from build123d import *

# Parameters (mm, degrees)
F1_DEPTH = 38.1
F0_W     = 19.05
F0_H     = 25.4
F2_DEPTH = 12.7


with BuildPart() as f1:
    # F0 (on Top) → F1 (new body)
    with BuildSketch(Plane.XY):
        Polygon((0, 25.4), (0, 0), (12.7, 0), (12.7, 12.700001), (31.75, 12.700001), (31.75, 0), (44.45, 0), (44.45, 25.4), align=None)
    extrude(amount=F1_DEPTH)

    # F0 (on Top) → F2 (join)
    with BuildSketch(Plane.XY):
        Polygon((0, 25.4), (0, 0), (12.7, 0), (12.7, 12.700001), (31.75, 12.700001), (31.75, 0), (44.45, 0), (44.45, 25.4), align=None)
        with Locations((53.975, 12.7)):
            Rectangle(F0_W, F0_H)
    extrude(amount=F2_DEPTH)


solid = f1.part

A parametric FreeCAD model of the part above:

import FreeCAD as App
import Part
import Sketcher
from FreeCAD import Vector
Q = App.Units.Quantity


def add_polygon(sketch, points):
    """Adds a closed chain of lines whose ends are joined by coincident constraints."""
    first, n = sketch.GeometryCount, len(points)
    for a, b in zip(points, points[1:] + points[:1]):
        sketch.addGeometry(Part.LineSegment(App.Vector(*a, 0), App.Vector(*b, 0)), False)
    for i in range(n):
        sketch.addConstraint(Sketcher.Constraint("Coincident", first + i, 2, first + (i + 1) % n, 1))

doc = App.newDocument("Part")
params = doc.addObject("Spreadsheet::Sheet", "Params")
for row, (alias, value) in enumerate([
    ("sketch1_height", "1 in"),
    ("sketch1_width", "0.5 in"),
    ("sketch1_width2", "0.75 in"),
    ("pad1_length", "1.5 in"),
    ("sketch2_height", "1 in"),
    ("sketch2_width", "0.5 in"),
    ("sketch2_width2", "2.5 in"),
    ("sketch2_width3", "0.75 in"),
    ("pad2_length", "0.5 in"),
], start=1):
    params.set(f"A{row}", alias)
    params.set(f"B{row}", "=" + value)
    params.setAlias(f"B{row}", alias)

body = doc.addObject("PartDesign::Body", "Body")

sketch1 = doc.addObject("Sketcher::SketchObject", "Sketch")
body.addObject(sketch1)
sketch1.AttachmentSupport = (doc.XY_Plane, [""])
sketch1.MapMode = "FlatFace"
add_polygon(sketch1, [(0, 25), (0, 0), (13, 0), (13, 13), (32, 13), (32, 0), (44, 0), (44, 25)])
sketch1.addConstraint([
    Sketcher.Constraint("Vertical", 0),
    Sketcher.Constraint("Horizontal", 1),
    Sketcher.Constraint("Vertical", 2),
    Sketcher.Constraint("Horizontal", 3),
    Sketcher.Constraint("Vertical", 4),
    Sketcher.Constraint("Horizontal", 5),
    Sketcher.Constraint("Vertical", 6),
    Sketcher.Constraint("Horizontal", 7),
    Sketcher.Constraint("Coincident", 0, 2, -1, 1),
    Sketcher.Constraint("PointOnObject", 4, 2, -1),
    Sketcher.Constraint("Equal", 1, 5),
    Sketcher.Constraint("Equal", 5, 2),
    Sketcher.Constraint("DistanceY", 0, 2, 0, 1, Q("1 in")),
    Sketcher.Constraint("DistanceX", 1, 1, 1, 2, Q("0.5 in")),
    Sketcher.Constraint("DistanceX", 3, 1, 3, 2, Q("0.75 in")),
])
sketch1.setExpression("Constraints[20]", "Params.sketch1_height")
sketch1.setExpression("Constraints[21]", "Params.sketch1_width")
sketch1.setExpression("Constraints[22]", "Params.sketch1_width2")
pad1 = doc.addObject("PartDesign::Pad", "Pad")
body.addObject(pad1)
pad1.Profile = sketch1
pad1.setExpression("Length", "Params.pad1_length")

sketch2 = doc.addObject("Sketcher::SketchObject", "Sketch001")
body.addObject(sketch2)
sketch2.AttachmentSupport = (doc.XY_Plane, [""])
sketch2.MapMode = "FlatFace"
add_polygon(sketch2, [(0, 25), (0, 0), (13, 0), (13, 13), (32, 13), (32, 0), (64, 0), (64, 25)])
sketch2.addConstraint([
    Sketcher.Constraint("Vertical", 0),
    Sketcher.Constraint("Horizontal", 1),
    Sketcher.Constraint("Vertical", 2),
    Sketcher.Constraint("Horizontal", 3),
    Sketcher.Constraint("Vertical", 4),
    Sketcher.Constraint("Horizontal", 5),
    Sketcher.Constraint("Vertical", 6),
    Sketcher.Constraint("Horizontal", 7),
    Sketcher.Constraint("Coincident", 0, 2, -1, 1),
    Sketcher.Constraint("PointOnObject", 4, 2, -1),
    Sketcher.Constraint("Equal", 1, 2),
    Sketcher.Constraint("DistanceY", 0, 2, 0, 1, Q("1 in")),
    Sketcher.Constraint("DistanceX", 1, 1, 1, 2, Q("0.5 in")),
    Sketcher.Constraint("DistanceX", 7, 2, 7, 1, Q("2.5 in")),
    Sketcher.Constraint("DistanceX", 3, 1, 3, 2, Q("0.75 in")),
])
sketch2.setExpression("Constraints[19]", "Params.sketch2_height")
sketch2.setExpression("Constraints[20]", "Params.sketch2_width")
sketch2.setExpression("Constraints[21]", "Params.sketch2_width2")
sketch2.setExpression("Constraints[22]", "Params.sketch2_width3")
pad2 = doc.addObject("PartDesign::Pad", "Pad001")
body.addObject(pad2)
pad2.Profile = sketch2
pad2.setExpression("Length", "Params.pad2_length")

doc.recompute()
